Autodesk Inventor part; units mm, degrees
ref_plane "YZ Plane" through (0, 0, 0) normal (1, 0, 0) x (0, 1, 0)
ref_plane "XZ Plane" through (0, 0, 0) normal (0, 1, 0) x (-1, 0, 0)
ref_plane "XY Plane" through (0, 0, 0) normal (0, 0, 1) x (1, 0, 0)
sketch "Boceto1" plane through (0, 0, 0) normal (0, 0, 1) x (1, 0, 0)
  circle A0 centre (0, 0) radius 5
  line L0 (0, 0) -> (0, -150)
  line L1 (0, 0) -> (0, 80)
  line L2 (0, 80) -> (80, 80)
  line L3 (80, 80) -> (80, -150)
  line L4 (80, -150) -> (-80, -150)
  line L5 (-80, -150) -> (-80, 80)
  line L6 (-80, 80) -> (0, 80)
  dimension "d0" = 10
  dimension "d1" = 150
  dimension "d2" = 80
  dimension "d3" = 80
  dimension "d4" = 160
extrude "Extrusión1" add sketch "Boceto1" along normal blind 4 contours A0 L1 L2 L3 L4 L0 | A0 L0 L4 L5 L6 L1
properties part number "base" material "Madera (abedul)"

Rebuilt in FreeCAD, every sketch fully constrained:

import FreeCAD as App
import Part
import Sketcher

V = App.Vector

doc = App.newDocument("Part")
body = doc.addObject("PartDesign::Body", "Body")

# Sketch on XY plane
sketch1 = body.newObject("Sketcher::SketchObject", "Sketch")
sketch1.AttachmentSupport = (doc.getObject("XY_Plane"), [""])
sketch1.MapMode = "FlatFace"
sketch1.addGeometry([
    Part.LineSegment(V(80, 80, 0), V(-80, 80, 0)),  # 0
    Part.LineSegment(V(-80, 80, 0), V(-80, -150, 0)),  # 1
    Part.LineSegment(V(-80, -150, 0), V(80, -150, 0)),  # 2
    Part.LineSegment(V(80, -150, 0), V(80, 80, 0)),  # 3
    Part.Circle(V(0, 0, 0), V(0, 0, 1), 5),  # 4
], False)
sketch1.addConstraint([
    Sketcher.Constraint("Coincident", 0, 2, 1, 1),
    Sketcher.Constraint("Coincident", 1, 2, 2, 1),
    Sketcher.Constraint("Coincident", 2, 2, 3, 1),
    Sketcher.Constraint("Coincident", 3, 2, 0, 1),
    Sketcher.Constraint("Horizontal", 0),
    Sketcher.Constraint("Vertical", 1),
    Sketcher.Constraint("Horizontal", 2),
    Sketcher.Constraint("Vertical", 3),
    Sketcher.Constraint("Coincident", 4, 3, -1, 1),
    Sketcher.Constraint("Diameter", 4, 10.0),
    Sketcher.Constraint("DistanceX", 0, 2, 0, 1, 160.0),
    Sketcher.Constraint("DistanceX", 0, 2, -1, 1, 80.0),
    Sketcher.Constraint("DistanceY", -1, 1, 0, 2, 80.0),
    Sketcher.Constraint("DistanceY", 1, 2, -1, 1, 150.0),
])
pad1 = body.newObject("PartDesign::Pad", "Pad")
pad1.Profile = sketch1
pad1.Length = 4

doc.recompute()
